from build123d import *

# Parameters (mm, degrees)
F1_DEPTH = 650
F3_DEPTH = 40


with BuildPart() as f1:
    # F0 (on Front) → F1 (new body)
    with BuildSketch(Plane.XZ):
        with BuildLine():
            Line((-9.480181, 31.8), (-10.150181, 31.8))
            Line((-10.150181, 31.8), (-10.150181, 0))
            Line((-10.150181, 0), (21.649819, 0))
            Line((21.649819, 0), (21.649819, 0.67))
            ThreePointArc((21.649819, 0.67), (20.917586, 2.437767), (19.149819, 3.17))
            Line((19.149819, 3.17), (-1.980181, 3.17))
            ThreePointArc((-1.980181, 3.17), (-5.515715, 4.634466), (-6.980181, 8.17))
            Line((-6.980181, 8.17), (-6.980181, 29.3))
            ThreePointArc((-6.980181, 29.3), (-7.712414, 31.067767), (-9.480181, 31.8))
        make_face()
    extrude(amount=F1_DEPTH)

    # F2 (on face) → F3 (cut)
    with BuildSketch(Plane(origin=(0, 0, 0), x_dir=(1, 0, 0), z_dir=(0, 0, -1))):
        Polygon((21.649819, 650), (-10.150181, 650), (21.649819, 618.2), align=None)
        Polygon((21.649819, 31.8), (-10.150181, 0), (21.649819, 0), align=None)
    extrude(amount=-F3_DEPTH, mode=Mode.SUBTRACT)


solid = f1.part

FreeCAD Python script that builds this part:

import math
import FreeCAD as App
import Part
import Sketcher
from FreeCAD import Vector
Q = App.Units.Quantity


def add_polygon(sketch, points):
    """Adds a closed chain of lines whose ends are joined by coincident constraints."""
    first, n = sketch.GeometryCount, len(points)
    for a, b in zip(points, points[1:] + points[:1]):
        sketch.addGeometry(Part.LineSegment(App.Vector(*a, 0), App.Vector(*b, 0)), False)
    for i in range(n):
        sketch.addConstraint(Sketcher.Constraint("Coincident", first + i, 2, first + (i + 1) % n, 1))

doc = App.newDocument("Part")
params = doc.addObject("Spreadsheet::Sheet", "Params")
for row, (alias, value) in enumerate([
    ("sketch1_radius", "5 mm"),
    ("sketch1_radius2", "2.5 mm"),
    ("sketch1_width", "31.8 mm"),
    ("sketch1_width2", "0.67 mm"),
    ("pad1_length", "650 mm"),
    ("sketch2_width", "31.8 mm"),
    ("pocket1_length", "40 mm"),
], start=1):
    params.set(f"A{row}", alias)
    params.set(f"B{row}", "=" + value)
    params.setAlias(f"B{row}", alias)

body = doc.addObject("PartDesign::Body", "Body")

# Sketch on XZ plane
sketch1 = body.newObject("Sketcher::SketchObject", "Sketch")
sketch1.AttachmentSupport = (doc.getObject("XZ_Plane"), [""])
sketch1.MapMode = "FlatFace"
sketch1.addGeometry(Part.LineSegment(Vector(-9.5, 31.8, 0), Vector(-10.2, 31.8, 0)), False)
sketch1.addGeometry(Part.LineSegment(Vector(-10.2, 31.8, 0), Vector(-10.2, 0, 0)), False)
sketch1.addGeometry(Part.LineSegment(Vector(-10.2, 0, 0), Vector(21.6, 0, 0)), False)
sketch1.addGeometry(Part.LineSegment(Vector(21.6, 0, 0), Vector(21.6, 0.7, 0)), False)
sketch1.addGeometry(Part.ArcOfCircle(Part.Circle(Vector(19.1, 0.7, 0), Vector(0, 0, 1), 2.5), math.radians(0), math.radians(90)), False)
sketch1.addGeometry(Part.LineSegment(Vector(19.1, 3.2, 0), Vector(-2, 3.2, 0)), False)
sketch1.addGeometry(Part.ArcOfCircle(Part.Circle(Vector(-2, 8.2, 0), Vector(0, 0, 1), 5), math.radians(180), math.radians(270)), False)
sketch1.addGeometry(Part.LineSegment(Vector(-7, 8.2, 0), Vector(-7, 29.3, 0)), False)
sketch1.addGeometry(Part.ArcOfCircle(Part.Circle(Vector(-9.5, 29.3, 0), Vector(0, 0, 1), 2.5), math.radians(0), math.radians(90)), False)
sketch1.addConstraint(Sketcher.Constraint("Coincident", 0, 2, 1, 1))
sketch1.addConstraint(Sketcher.Constraint("Coincident", 1, 2, 2, 1))
sketch1.addConstraint(Sketcher.Constraint("Coincident", 2, 2, 3, 1))
sketch1.addConstraint(Sketcher.Constraint("Tangent", 3, 2, 4, 1))
sketch1.addConstraint(Sketcher.Constraint("Tangent", 4, 2, 5, 1))
sketch1.addConstraint(Sketcher.Constraint("Tangent", 5, 2, 6, 2))
sketch1.addConstraint(Sketcher.Constraint("Tangent", 6, 1, 7, 1))
sketch1.addConstraint(Sketcher.Constraint("Tangent", 7, 2, 8, 1))
sketch1.addConstraint(Sketcher.Constraint("Tangent", 8, 2, 0, 1))
sketch1.addConstraint(Sketcher.Constraint("Horizontal", 0))
sketch1.addConstraint(Sketcher.Constraint("Vertical", 1))
sketch1.addConstraint(Sketcher.Constraint("Horizontal", 2))
sketch1.addConstraint(Sketcher.Constraint("Vertical", 3))
sketch1.addConstraint(Sketcher.Constraint("Horizontal", 5))
sketch1.addConstraint(Sketcher.Constraint("Vertical", 7))
sketch1.addConstraint(Sketcher.Constraint("Equal", 4, 8))
sketch1.addConstraint(Sketcher.Constraint("PointOnObject", 1, 2, -1))
sketch1.addConstraint(Sketcher.Constraint("Equal", 2, 1))
sketch1.addConstraint(Sketcher.Constraint("Equal", 0, 3))
sketch1.addConstraint(Sketcher.Constraint("Radius", 6, Q("5 mm")))
sketch1.addConstraint(Sketcher.Constraint("Radius", 4, Q("2.5 mm")))
sketch1.addConstraint(Sketcher.Constraint("DistanceX", 2, 1, 2, 2, Q("31.8 mm")))
sketch1.addConstraint(Sketcher.Constraint("DistanceX", 0, 2, 0, 1, Q("0.67 mm")))
sketch1.addConstraint(Sketcher.Constraint("DistanceX", -1, 1, 4, 3, Q("19.149819 mm")))
sketch1.setExpression("Constraints[19]", "Params.sketch1_radius")
sketch1.setExpression("Constraints[20]", "Params.sketch1_radius2")
sketch1.setExpression("Constraints[21]", "Params.sketch1_width")
sketch1.setExpression("Constraints[22]", "Params.sketch1_width2")
pad1 = body.newObject("PartDesign::Pad", "Pad")
pad1.Profile = sketch1
pad1.setExpression("Length", "Params.pad1_length")

# Sketch on XY plane
sketch2 = body.newObject("Sketcher::SketchObject", "Sketch001")
sketch2.AttachmentSupport = (doc.getObject("XY_Plane"), [""])
sketch2.MapMode = "FlatFace"
add_polygon(sketch2, [(22, -650), (-10, -650), (22, -618)])  # lines 0-2
add_polygon(sketch2, [(22, -32), (-10, 0), (22, 0)])  # lines 3-5
sketch2.addConstraint(Sketcher.Constraint("Horizontal", 0))
sketch2.addConstraint(Sketcher.Constraint("Vertical", 2))
sketch2.addConstraint(Sketcher.Constraint("Horizontal", 4))
sketch2.addConstraint(Sketcher.Constraint("Vertical", 5))
sketch2.addConstraint(Sketcher.Constraint("PointOnObject", 3, 2, -1))
sketch2.addConstraint(Sketcher.Constraint("Perpendicular", 1, 3))
sketch2.addConstraint(Sketcher.Constraint("Vertical", 0, 2, 3, 2))
sketch2.addConstraint(Sketcher.Constraint("Vertical", 2, 2, 4, 2))
sketch2.addConstraint(Sketcher.Constraint("Equal", 4, 2))
sketch2.addConstraint(Sketcher.Constraint("DistanceX", 0, 2, 0, 1, Q("31.8 mm")))
sketch2.addConstraint(Sketcher.Constraint("DistanceY", 0, 2, -1, 1, Q("650 mm")))
sketch2.addConstraint(Sketcher.Constraint("DistanceX", 0, 2, -1, 1, Q("10.150181 mm")))
sketch2.setExpression("Constraints[15]", "Params.sketch2_width")
pocket1 = body.newObject("PartDesign::Pocket", "Pocket")
pocket1.Profile = sketch2
pocket1.setExpression("Length", "Params.pocket1_length")
pocket1.Reversed = True

doc.recompute()
